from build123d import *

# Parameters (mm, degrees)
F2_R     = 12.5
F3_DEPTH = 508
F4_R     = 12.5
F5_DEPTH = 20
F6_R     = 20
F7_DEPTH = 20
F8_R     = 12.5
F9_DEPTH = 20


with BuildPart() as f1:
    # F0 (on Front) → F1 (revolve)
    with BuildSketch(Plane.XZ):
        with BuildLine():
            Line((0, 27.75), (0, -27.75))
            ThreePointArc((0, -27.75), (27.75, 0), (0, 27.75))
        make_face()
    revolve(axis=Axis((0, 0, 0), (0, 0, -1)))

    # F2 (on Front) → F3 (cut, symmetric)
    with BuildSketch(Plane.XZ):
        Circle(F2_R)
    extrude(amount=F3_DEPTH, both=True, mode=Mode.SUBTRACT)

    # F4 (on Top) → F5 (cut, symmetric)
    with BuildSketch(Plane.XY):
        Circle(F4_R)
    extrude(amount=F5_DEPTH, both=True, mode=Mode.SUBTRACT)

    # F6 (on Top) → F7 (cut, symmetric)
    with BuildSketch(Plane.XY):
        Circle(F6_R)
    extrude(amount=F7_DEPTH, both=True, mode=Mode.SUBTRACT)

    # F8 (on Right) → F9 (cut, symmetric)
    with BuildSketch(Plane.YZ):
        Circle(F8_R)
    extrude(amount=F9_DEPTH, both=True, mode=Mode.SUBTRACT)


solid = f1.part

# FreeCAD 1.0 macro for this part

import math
import FreeCAD as App
import Part
import Sketcher
from FreeCAD import Vector
Q = App.Units.Quantity

doc = App.newDocument("Part")
body = doc.addObject("PartDesign::Body", "Body")
body.AllowCompound = True

sketch1 = doc.addObject("Sketcher::SketchObject", "Sketch")
body.addObject(sketch1)
sketch1.AttachmentSupport = (doc.XZ_Plane, [""])
sketch1.MapMode = "FlatFace"
sketch1.addGeometry([
    Part.LineSegment(Vector(0, 27.75, 0), Vector(0, -27.75, 0)),
    Part.ArcOfCircle(Part.Circle(Vector(0, 0, 0), Vector(0, 0, 1), 27.75), math.radians(-90), math.radians(90)),
], False)
sketch1.addConstraint([
    Sketcher.Constraint("Coincident", 0, 1, 1, 2),
    Sketcher.Constraint("Coincident", 1, 1, 0, 2),
    Sketcher.Constraint("Vertical", 0),
    Sketcher.Constraint("Coincident", 1, 3, -1, 1),
    Sketcher.Constraint("PointOnObject", 0, 1, -2),
    Sketcher.Constraint("Radius", 1, Q("27.75 mm")),
])
revolution = doc.addObject("PartDesign::Revolution", "Revolution")
body.addObject(revolution)
revolution.Profile = sketch1
revolution.ReferenceAxis = (sketch1, ["V_Axis"])
revolution.Angle = 360

sketch2 = doc.addObject("Sketcher::SketchObject", "Sketch001")
body.addObject(sketch2)
sketch2.AttachmentSupport = (doc.XZ_Plane, [""])
sketch2.MapMode = "FlatFace"
sketch2.addGeometry(Part.Circle(Vector(0, 0, 0), Vector(0, 0, 1), 12.5), False)
sketch2.addConstraint([
    Sketcher.Constraint("Coincident", 0, 3, -1, 1),
    Sketcher.Constraint("Diameter", 0, Q("25 mm")),
])
pocket1 = doc.addObject("PartDesign::Pocket", "Pocket")
body.addObject(pocket1)
pocket1.Profile = sketch2
pocket1.Length = 1016
pocket1.Midplane = True

sketch3 = doc.addObject("Sketcher::SketchObject", "Sketch002")
body.addObject(sketch3)
sketch3.AttachmentSupport = (doc.XY_Plane, [""])
sketch3.MapMode = "FlatFace"
sketch3.addGeometry(Part.Circle(Vector(0, 0, 0), Vector(0, 0, 1), 12.5), False)
sketch3.addConstraint([
    Sketcher.Constraint("Coincident", 0, 3, -1, 1),
    Sketcher.Constraint("Diameter", 0, Q("25 mm")),
])
pocket2 = doc.addObject("PartDesign::Pocket", "Pocket001")
body.addObject(pocket2)
pocket2.Profile = sketch3
pocket2.Length = 40
pocket2.Midplane = True

sketch4 = doc.addObject("Sketcher::SketchObject", "Sketch003")
body.addObject(sketch4)
sketch4.AttachmentSupport = (doc.XY_Plane, [""])
sketch4.MapMode = "FlatFace"
sketch4.addGeometry(Part.Circle(Vector(0, 0, 0), Vector(0, 0, 1), 20), False)
sketch4.addConstraint([
    Sketcher.Constraint("Coincident", 0, 3, -1, 1),
    Sketcher.Constraint("Diameter", 0, Q("40 mm")),
])
pocket3 = doc.addObject("PartDesign::Pocket", "Pocket002")
body.addObject(pocket3)
pocket3.Profile = sketch4
pocket3.Length = 40
pocket3.Midplane = True

sketch5 = doc.addObject("Sketcher::SketchObject", "Sketch004")
body.addObject(sketch5)
sketch5.AttachmentSupport = (doc.YZ_Plane, [""])
sketch5.MapMode = "FlatFace"
sketch5.addGeometry(Part.Circle(Vector(0, 0, 0), Vector(0, 0, 1), 12.5), False)
sketch5.addConstraint([
    Sketcher.Constraint("Coincident", 0, 3, -1, 1),
    Sketcher.Constraint("Diameter", 0, Q("25 mm")),
])
pocket4 = doc.addObject("PartDesign::Pocket", "Pocket003")
body.addObject(pocket4)
pocket4.Profile = sketch5
pocket4.Length = 40
pocket4.Midplane = True

doc.recompute()
